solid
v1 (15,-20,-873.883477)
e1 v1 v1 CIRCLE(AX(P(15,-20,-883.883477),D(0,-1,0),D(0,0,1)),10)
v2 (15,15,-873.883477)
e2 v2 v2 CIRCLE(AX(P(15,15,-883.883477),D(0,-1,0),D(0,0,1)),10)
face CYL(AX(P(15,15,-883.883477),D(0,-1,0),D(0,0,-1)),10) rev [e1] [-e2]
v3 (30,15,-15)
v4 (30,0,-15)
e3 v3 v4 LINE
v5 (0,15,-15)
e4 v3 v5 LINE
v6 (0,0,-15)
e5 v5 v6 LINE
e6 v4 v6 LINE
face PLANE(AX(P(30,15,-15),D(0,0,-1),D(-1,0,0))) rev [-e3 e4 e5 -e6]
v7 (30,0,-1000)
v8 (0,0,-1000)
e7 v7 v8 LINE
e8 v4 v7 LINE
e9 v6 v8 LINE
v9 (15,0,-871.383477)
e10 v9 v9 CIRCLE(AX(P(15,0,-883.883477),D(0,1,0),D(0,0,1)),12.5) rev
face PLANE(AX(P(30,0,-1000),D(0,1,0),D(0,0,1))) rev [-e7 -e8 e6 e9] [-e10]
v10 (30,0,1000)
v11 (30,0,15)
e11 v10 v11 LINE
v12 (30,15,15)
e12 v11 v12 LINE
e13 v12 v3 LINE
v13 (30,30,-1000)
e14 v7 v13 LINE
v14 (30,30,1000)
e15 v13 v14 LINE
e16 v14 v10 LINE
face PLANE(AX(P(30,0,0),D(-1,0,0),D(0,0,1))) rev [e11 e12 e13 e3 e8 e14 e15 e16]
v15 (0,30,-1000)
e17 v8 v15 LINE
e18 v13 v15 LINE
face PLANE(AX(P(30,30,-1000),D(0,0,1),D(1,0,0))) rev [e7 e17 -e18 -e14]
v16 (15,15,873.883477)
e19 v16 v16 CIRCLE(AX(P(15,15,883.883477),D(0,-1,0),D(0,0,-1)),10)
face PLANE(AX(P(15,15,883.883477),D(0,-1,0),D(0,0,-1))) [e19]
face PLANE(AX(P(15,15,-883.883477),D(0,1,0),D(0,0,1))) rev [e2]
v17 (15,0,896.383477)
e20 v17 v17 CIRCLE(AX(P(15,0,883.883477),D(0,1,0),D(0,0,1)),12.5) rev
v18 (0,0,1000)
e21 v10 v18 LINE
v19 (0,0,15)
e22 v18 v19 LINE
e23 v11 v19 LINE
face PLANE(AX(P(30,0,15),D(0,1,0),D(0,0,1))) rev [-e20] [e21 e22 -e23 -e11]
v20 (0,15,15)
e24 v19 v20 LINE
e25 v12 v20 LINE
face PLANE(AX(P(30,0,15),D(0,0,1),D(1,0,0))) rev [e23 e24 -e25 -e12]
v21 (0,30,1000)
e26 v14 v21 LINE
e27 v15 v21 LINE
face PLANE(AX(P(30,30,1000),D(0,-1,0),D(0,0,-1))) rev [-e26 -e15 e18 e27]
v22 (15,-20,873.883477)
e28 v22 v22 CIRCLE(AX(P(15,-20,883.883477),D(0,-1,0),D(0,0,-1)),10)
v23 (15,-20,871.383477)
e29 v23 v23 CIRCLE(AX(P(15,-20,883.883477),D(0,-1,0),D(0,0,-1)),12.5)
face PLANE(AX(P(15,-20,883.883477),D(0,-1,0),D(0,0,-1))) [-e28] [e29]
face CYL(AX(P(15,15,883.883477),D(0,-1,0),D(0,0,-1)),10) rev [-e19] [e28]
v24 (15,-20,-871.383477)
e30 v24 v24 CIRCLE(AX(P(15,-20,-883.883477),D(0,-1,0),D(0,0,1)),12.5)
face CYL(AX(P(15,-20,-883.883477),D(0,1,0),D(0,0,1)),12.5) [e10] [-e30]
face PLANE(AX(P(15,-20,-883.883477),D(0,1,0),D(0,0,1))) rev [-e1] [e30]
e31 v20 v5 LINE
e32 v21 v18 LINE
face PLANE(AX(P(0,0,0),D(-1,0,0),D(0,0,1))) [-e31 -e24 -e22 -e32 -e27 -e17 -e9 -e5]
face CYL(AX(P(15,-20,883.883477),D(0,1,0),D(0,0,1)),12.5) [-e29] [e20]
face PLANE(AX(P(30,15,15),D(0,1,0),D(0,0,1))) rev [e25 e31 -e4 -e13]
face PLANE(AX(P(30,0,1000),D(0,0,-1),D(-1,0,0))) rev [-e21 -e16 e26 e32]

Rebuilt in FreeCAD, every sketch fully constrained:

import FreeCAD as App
import Part
import Sketcher

V = App.Vector
Q = App.Units.Quantity


def add_polygon(sketch, points):
    """Adds a closed chain of lines whose ends are joined by coincident constraints."""
    first, n = sketch.GeometryCount, len(points)
    for a, b in zip(points, points[1:] + points[:1]):
        sketch.addGeometry(Part.LineSegment(App.Vector(*a, 0), App.Vector(*b, 0)), False)
    for i in range(n):
        sketch.addConstraint(Sketcher.Constraint("Coincident", first + i, 2, first + (i + 1) % n, 1))

doc = App.newDocument("Part")
body = doc.addObject("PartDesign::Body", "Body")

# Sketch on YZ plane
sketch1 = body.newObject("Sketcher::SketchObject", "Sketch")
sketch1.AttachmentSupport = (doc.getObject("YZ_Plane"), [""])
sketch1.MapMode = "FlatFace"
add_polygon(sketch1, [(30, -1000), (30, 1000), (0, 1000), (0, 15), (15, 15), (15, -15), (0, -15), (0, -1000)])  # lines 0-7
sketch1.addConstraint([
    Sketcher.Constraint("Vertical", 0),
    Sketcher.Constraint("Horizontal", 1),
    Sketcher.Constraint("Vertical", 2),
    Sketcher.Constraint("Horizontal", 3),
    Sketcher.Constraint("Vertical", 4),
    Sketcher.Constraint("Horizontal", 5),
    Sketcher.Constraint("Vertical", 6),
    Sketcher.Constraint("Horizontal", 7),
    Sketcher.Constraint("Symmetric", 2, 2, 5, 2, -1, 1),
    Sketcher.Constraint("Symmetric", 1, 2, 6, 2, -1),
    Sketcher.Constraint("Equal", 7, 4),
    Sketcher.Constraint("DistanceX", 1, 2, 1, 1, Q("30 mm")),
    Sketcher.Constraint("DistanceX", 3, 1, 3, 2, Q("15 mm")),
    Sketcher.Constraint("DistanceY", 0, 1, 0, 2, Q("2000 mm")),
])
pad1 = body.newObject("PartDesign::Pad", "Pad")
pad1.Profile = sketch1
pad1.Length = 30

# Sketch on XZ plane
sketch2 = body.newObject("Sketcher::SketchObject", "Sketch001")
sketch2.AttachmentSupport = (doc.getObject("XZ_Plane"), [""])
sketch2.MapMode = "FlatFace"
sketch2.addGeometry([
    Part.Circle(V(15, 884, 0), V(0, 0, 1), 10),
    Part.Circle(V(15, -884, 0), V(0, 0, 1), 10),
], False)
sketch2.addConstraint([
    Sketcher.Constraint("Equal", 0, 1),
    Sketcher.Constraint("Symmetric", 0, 3, 1, 3, -1),
    Sketcher.Constraint("Diameter", 0, Q("20 mm")),
    Sketcher.Constraint("DistanceX", -1, 1, 0, 3, Q("15 mm")),
    Sketcher.Constraint("DistanceY", -1, 1, 0, 3, Q("883.883477 mm")),
])
pocket1 = body.newObject("PartDesign::Pocket", "Pocket")
pocket1.Profile = sketch2
pocket1.Length = 15

# Sketch on XZ plane
sketch3 = body.newObject("Sketcher::SketchObject", "Sketch002")
sketch3.AttachmentSupport = (doc.getObject("XZ_Plane"), [""])
sketch3.MapMode = "FlatFace"
sketch3.AttachmentOffset = App.Placement(V(0, 0, 20), App.Rotation())
sketch3.addGeometry([
    Part.Circle(V(15, 884, 0), V(0, 0, 1), 12),
    Part.Circle(V(15, 884, 0), V(0, 0, 1), 10),
    Part.Circle(V(15, -884, 0), V(0, 0, 1), 12),
    Part.Circle(V(15, -884, 0), V(0, 0, 1), 10),
], False)
sketch3.addConstraint([
    Sketcher.Constraint("Coincident", 1, 3, 0, 3),
    Sketcher.Constraint("Coincident", 3, 3, 2, 3),
    Sketcher.Constraint("Equal", 0, 2),
    Sketcher.Constraint("Equal", 1, 3),
    Sketcher.Constraint("Symmetric", 0, 3, 2, 3, -1),
    Sketcher.Constraint("Diameter", 0, Q("25 mm")),
    Sketcher.Constraint("Diameter", 1, Q("20 mm")),
    Sketcher.Constraint("DistanceX", -1, 1, 0, 3, Q("15 mm")),
    Sketcher.Constraint("DistanceY", -1, 1, 0, 3, Q("883.883477 mm")),
])
pad2 = body.newObject("PartDesign::Pad", "Pad001")
pad2.Profile = sketch3
pad2.Length = 20
pad2.Reversed = True

doc.recompute()
